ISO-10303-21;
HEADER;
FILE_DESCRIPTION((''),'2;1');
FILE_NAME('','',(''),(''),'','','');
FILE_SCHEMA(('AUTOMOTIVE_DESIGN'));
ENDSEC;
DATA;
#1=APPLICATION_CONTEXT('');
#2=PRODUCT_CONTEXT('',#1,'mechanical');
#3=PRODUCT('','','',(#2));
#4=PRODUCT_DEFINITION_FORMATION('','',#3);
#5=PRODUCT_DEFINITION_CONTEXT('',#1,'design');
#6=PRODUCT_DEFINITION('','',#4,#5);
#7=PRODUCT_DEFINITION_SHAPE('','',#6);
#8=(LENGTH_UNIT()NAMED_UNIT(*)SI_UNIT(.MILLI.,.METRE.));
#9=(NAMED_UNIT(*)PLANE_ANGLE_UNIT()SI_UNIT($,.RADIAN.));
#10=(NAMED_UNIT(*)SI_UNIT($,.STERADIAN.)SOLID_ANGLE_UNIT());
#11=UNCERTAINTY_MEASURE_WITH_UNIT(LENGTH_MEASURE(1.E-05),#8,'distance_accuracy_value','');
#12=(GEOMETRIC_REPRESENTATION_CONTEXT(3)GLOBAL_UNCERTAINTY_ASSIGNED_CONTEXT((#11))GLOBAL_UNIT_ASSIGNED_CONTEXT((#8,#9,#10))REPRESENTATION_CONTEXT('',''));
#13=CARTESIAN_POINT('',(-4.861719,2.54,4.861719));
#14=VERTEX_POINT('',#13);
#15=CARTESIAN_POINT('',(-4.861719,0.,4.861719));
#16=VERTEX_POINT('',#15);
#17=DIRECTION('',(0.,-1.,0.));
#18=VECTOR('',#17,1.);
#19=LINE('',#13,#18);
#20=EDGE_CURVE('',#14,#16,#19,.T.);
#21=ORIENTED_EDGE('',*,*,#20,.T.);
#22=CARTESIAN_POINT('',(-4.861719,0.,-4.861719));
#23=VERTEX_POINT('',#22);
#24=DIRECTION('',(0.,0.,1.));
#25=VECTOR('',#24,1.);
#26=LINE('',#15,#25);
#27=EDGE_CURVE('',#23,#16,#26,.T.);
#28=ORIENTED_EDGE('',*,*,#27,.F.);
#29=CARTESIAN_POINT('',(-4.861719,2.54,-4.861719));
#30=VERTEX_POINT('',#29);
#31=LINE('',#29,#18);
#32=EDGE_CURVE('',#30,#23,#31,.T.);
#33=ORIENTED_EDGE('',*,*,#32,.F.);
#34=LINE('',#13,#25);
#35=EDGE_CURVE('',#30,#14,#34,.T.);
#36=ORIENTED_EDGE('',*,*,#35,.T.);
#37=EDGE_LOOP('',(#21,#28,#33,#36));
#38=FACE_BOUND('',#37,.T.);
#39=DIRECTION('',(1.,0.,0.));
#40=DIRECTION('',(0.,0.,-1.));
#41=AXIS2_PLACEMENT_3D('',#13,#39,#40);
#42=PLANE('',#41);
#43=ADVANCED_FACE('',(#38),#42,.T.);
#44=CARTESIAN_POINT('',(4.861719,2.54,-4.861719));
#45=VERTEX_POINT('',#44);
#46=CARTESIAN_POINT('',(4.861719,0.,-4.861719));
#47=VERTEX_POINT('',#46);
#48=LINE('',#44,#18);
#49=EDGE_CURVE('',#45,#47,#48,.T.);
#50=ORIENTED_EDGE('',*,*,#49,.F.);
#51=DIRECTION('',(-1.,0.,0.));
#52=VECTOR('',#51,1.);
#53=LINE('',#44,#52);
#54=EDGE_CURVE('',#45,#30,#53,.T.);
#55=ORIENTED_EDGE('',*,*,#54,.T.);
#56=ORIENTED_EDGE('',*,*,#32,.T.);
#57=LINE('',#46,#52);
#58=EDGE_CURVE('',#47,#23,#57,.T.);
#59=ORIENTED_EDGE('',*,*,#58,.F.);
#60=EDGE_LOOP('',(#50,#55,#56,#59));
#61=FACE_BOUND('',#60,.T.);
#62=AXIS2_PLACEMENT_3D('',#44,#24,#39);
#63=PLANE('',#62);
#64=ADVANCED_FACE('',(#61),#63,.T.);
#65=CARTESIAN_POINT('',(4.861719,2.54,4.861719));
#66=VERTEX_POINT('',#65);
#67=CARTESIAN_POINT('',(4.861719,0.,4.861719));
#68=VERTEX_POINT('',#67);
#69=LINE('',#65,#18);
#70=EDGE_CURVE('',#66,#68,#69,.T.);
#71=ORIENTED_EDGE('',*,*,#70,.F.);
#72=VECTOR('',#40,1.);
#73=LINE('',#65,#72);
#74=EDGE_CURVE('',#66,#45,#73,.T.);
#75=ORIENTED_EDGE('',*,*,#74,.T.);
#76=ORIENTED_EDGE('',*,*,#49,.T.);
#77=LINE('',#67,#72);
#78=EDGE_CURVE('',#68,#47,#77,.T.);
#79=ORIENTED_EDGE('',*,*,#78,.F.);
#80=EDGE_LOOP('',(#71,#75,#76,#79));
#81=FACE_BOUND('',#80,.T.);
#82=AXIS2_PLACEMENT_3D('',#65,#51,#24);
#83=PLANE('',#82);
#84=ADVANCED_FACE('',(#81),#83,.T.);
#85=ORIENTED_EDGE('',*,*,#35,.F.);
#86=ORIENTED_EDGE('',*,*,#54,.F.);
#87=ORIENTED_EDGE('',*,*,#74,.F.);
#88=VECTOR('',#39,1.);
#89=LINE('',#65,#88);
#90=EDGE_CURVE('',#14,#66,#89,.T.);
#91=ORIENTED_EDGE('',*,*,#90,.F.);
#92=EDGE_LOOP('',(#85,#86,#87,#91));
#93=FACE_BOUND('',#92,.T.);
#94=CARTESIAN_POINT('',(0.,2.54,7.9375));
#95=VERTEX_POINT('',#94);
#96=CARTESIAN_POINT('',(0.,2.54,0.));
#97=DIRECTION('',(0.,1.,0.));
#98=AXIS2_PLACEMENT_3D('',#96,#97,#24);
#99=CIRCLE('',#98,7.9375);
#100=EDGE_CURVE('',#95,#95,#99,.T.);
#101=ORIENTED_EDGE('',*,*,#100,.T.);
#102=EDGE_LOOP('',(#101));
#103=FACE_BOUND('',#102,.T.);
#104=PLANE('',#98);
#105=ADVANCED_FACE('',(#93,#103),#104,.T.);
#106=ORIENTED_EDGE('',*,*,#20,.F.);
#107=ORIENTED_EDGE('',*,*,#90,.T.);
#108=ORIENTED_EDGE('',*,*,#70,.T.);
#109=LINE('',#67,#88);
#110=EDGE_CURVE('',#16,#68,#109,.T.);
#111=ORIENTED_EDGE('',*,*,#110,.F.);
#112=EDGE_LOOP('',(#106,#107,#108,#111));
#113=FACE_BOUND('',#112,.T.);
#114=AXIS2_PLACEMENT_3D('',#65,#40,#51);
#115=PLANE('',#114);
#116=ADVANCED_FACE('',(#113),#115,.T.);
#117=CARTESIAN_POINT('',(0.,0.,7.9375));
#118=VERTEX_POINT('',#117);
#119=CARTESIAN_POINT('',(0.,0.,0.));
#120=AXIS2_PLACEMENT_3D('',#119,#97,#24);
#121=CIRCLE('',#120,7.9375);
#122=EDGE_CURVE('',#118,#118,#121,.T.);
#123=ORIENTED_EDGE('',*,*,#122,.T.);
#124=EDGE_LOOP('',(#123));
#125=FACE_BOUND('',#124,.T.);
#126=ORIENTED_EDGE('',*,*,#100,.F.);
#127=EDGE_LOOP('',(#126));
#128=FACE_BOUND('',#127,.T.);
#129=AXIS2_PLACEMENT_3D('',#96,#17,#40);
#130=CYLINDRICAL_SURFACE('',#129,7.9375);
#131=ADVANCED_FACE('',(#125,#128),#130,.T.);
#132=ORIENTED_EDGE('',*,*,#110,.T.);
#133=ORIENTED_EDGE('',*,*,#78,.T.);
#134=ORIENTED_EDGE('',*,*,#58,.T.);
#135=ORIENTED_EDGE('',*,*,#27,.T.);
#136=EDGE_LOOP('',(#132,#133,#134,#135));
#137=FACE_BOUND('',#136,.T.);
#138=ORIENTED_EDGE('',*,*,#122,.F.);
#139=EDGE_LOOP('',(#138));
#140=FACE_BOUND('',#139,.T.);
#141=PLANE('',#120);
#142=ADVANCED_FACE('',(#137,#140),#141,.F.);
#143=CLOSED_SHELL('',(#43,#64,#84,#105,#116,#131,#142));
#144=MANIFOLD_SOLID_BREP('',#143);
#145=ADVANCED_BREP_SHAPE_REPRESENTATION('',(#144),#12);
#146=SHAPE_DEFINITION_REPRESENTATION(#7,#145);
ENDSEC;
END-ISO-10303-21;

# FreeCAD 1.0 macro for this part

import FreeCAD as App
import Part
import Sketcher
from FreeCAD import Vector
Q = App.Units.Quantity


def add_polygon(sketch, points):
    """Adds a closed chain of lines whose ends are joined by coincident constraints."""
    first, n = sketch.GeometryCount, len(points)
    for a, b in zip(points, points[1:] + points[:1]):
        sketch.addGeometry(Part.LineSegment(App.Vector(*a, 0), App.Vector(*b, 0)), False)
    for i in range(n):
        sketch.addConstraint(Sketcher.Constraint("Coincident", first + i, 2, first + (i + 1) % n, 1))

doc = App.newDocument("Part")
body = doc.addObject("PartDesign::Body", "Body")

# Sketch on XZ plane
sketch1 = body.newObject("Sketcher::SketchObject", "Sketch")
sketch1.AttachmentSupport = (doc.getObject("XZ_Plane"), [""])
sketch1.MapMode = "FlatFace"
sketch1.addGeometry(Part.Circle(Vector(0, 0, 0), Vector(0, 0, 1), 8), False)  # 0
add_polygon(sketch1, [(5, 5), (-5, 5), (-5, -5), (5, -5)])  # lines 1-4
sketch1.addConstraint([
    Sketcher.Constraint("Horizontal", 1),
    Sketcher.Constraint("Vertical", 2),
    Sketcher.Constraint("Horizontal", 3),
    Sketcher.Constraint("Vertical", 4),
    Sketcher.Constraint("Coincident", 0, 3, -1, 1),
    Sketcher.Constraint("Symmetric", 1, 2, 3, 2, -1, 1),
    Sketcher.Constraint("Equal", 3, 2),
    Sketcher.Constraint("Diameter", 0, Q("0.625 in")),
    Sketcher.Constraint("DistanceX", 1, 2, 1, 1, Q("9.723437 mm")),
])
pad1 = body.newObject("PartDesign::Pad", "Pad")
pad1.Profile = sketch1
pad1.Length = Q("0.1 in")
pad1.Reversed = True

doc.recompute()
